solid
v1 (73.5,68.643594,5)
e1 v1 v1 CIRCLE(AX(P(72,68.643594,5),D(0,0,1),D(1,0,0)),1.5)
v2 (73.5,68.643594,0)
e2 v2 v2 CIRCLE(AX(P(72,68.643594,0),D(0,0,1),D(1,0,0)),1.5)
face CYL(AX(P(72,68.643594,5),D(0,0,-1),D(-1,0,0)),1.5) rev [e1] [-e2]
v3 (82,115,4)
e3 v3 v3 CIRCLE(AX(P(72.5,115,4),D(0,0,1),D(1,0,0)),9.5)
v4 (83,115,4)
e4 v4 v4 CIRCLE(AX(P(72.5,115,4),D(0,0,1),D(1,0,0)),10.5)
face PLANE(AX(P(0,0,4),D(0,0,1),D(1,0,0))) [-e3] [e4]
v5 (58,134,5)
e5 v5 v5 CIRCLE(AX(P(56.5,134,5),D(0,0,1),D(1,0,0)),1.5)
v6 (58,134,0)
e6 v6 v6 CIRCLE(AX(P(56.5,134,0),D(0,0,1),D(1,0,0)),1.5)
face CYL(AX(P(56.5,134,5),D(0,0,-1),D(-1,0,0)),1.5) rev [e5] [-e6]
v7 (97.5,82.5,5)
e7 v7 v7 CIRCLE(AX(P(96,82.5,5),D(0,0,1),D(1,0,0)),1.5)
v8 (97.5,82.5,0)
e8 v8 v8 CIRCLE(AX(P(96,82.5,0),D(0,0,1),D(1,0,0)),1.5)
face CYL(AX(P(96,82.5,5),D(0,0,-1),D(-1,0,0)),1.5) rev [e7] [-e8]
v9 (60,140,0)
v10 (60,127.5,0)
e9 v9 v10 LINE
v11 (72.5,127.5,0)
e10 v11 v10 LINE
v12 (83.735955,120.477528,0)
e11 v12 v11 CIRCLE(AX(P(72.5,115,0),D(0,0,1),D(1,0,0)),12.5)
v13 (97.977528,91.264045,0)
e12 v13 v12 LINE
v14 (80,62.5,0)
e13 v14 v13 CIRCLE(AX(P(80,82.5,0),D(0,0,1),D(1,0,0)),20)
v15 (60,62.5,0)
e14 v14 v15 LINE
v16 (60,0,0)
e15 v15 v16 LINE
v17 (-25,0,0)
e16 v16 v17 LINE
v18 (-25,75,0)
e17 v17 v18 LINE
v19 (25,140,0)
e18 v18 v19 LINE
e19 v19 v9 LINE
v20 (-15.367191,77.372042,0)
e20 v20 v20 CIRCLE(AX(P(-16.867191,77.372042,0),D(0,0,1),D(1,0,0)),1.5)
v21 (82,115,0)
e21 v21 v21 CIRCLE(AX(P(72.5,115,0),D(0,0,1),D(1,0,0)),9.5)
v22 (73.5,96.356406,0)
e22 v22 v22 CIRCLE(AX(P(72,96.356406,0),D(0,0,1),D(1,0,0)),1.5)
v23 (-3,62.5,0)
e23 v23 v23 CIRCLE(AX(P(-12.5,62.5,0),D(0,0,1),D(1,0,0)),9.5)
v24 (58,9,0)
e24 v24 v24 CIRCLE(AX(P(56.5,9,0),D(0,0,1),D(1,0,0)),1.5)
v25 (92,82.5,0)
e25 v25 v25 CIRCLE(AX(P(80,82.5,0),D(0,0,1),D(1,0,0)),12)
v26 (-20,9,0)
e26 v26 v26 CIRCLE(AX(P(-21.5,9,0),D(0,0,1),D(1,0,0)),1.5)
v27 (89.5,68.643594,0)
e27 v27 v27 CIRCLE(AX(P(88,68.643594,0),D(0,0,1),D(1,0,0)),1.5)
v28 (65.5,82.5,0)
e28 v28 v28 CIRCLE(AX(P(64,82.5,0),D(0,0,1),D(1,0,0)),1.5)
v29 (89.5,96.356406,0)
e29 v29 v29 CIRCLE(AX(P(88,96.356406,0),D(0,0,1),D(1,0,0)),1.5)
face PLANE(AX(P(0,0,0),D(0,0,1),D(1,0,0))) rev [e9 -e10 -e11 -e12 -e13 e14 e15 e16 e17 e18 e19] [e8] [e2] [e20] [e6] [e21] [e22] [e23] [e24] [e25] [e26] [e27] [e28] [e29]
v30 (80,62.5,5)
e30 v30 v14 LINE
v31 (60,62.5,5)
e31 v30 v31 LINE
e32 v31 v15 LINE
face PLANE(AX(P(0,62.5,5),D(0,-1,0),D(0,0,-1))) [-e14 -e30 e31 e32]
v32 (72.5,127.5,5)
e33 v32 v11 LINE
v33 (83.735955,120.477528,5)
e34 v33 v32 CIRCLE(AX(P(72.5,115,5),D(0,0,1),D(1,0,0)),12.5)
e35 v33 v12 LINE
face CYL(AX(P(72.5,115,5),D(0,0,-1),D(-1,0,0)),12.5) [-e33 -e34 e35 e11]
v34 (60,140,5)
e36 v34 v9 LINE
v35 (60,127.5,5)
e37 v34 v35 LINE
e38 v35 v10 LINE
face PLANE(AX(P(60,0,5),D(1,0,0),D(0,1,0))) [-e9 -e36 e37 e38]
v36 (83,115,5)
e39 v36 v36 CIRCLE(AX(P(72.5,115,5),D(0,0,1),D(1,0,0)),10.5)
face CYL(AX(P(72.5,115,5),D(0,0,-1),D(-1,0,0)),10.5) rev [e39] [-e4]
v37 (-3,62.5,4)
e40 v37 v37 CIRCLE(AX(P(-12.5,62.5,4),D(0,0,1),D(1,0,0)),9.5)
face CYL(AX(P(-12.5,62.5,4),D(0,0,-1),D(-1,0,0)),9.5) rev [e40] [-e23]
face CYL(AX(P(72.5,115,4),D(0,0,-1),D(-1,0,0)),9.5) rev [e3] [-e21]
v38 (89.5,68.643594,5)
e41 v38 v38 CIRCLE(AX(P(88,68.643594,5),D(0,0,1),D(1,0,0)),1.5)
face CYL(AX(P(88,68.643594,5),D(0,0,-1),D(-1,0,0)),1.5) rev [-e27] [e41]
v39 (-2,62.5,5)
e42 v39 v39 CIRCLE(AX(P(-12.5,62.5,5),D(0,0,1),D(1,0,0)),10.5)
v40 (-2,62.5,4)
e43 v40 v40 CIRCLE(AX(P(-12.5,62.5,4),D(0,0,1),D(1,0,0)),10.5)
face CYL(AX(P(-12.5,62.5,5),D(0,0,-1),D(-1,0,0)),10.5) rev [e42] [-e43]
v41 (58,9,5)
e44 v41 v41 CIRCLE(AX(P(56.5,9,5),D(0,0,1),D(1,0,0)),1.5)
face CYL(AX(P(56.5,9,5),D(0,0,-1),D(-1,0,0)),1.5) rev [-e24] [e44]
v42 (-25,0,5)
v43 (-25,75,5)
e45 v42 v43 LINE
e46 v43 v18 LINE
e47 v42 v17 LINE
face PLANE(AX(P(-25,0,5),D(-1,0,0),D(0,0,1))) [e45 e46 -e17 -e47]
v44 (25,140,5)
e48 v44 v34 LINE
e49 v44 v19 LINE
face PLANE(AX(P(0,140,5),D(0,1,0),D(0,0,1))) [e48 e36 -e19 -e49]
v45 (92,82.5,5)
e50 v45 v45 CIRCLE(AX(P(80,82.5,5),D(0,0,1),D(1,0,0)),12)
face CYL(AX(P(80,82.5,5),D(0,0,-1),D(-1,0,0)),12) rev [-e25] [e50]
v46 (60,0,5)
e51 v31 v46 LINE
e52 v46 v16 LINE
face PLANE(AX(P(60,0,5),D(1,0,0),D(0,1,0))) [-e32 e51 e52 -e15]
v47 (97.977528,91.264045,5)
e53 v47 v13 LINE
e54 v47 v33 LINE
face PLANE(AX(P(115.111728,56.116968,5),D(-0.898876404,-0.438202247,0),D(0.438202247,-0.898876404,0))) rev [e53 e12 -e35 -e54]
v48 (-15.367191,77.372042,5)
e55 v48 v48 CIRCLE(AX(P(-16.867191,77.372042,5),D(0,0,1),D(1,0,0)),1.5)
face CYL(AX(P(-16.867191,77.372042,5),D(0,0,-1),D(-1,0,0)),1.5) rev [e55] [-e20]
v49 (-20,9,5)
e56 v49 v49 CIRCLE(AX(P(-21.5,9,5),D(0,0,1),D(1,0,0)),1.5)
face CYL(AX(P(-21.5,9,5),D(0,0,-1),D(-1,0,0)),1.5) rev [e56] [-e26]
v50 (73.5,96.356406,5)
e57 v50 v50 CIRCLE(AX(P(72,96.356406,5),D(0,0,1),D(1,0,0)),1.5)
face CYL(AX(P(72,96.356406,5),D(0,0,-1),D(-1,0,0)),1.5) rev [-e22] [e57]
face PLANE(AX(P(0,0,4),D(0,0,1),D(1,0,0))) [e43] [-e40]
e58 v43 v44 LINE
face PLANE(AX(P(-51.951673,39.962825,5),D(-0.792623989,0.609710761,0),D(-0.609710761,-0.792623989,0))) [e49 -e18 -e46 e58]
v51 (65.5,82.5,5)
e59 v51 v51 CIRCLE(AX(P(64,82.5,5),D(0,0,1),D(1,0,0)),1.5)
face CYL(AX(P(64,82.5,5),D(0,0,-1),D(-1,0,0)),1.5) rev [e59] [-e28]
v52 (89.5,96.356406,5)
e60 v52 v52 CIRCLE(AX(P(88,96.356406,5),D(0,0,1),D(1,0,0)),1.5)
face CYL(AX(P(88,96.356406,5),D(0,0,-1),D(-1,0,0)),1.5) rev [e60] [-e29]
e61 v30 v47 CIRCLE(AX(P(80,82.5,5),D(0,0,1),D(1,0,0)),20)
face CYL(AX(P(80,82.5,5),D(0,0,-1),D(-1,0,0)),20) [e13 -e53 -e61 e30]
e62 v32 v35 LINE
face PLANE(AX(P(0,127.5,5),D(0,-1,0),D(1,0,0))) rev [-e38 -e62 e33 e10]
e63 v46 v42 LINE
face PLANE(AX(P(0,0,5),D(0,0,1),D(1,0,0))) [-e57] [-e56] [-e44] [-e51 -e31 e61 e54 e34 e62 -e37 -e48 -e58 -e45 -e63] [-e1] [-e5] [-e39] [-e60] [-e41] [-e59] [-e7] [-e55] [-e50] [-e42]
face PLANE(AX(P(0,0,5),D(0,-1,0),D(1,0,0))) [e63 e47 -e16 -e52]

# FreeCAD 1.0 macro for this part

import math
import FreeCAD as App
import Part
import Sketcher
from FreeCAD import Vector

doc = App.newDocument("Part")
body = doc.addObject("PartDesign::Body", "Body")

# Sketch on XY plane
sketch1 = body.newObject("Sketcher::SketchObject", "Sketch")
sketch1.AttachmentSupport = (doc.getObject("XY_Plane"), [""])
sketch1.MapMode = "FlatFace"
sketch1.addGeometry([
    Part.LineSegment(Vector(60, 140, 0), Vector(25, 140, 0)),  # 0
    Part.LineSegment(Vector(25, 140, 0), Vector(-25, 75, 0)),  # 1
    Part.LineSegment(Vector(-25, 75, 0), Vector(-25, 0, 0)),  # 2
    Part.LineSegment(Vector(-25, 0, 0), Vector(60, 0, 0)),  # 3
    Part.LineSegment(Vector(60, 0, 0), Vector(60, 62.5, 0)),  # 4
    Part.LineSegment(Vector(60, 62.5, 0), Vector(80, 62.5, 0)),  # 5
    Part.ArcOfCircle(Part.Circle(Vector(80, 82.5, 0), Vector(0, 0, 1), 20), math.radians(-90), math.radians(25.989234)),  # 6
    Part.LineSegment(Vector(97.977528, 91.264045, 0), Vector(83.735955, 120.477528, 0)),  # 7
    Part.ArcOfCircle(Part.Circle(Vector(72.5, 115, 0), Vector(0, 0, 1), 12.5), math.radians(25.989234), math.radians(90)),  # 8
    Part.LineSegment(Vector(72.5, 127.5, 0), Vector(60, 127.5, 0)),  # 9
    Part.LineSegment(Vector(60, 127.5, 0), Vector(60, 140, 0)),  # 10
    Part.Circle(Vector(-21.5, 9, 0), Vector(0, 0, 1), 1.5),  # 11
    Part.Circle(Vector(-12.5, 62.5, 0), Vector(0, 0, 1), 10.5),  # 12
    Part.Circle(Vector(56.5, 9, 0), Vector(0, 0, 1), 1.5),  # 13
    Part.Circle(Vector(72, 68.643594, 0), Vector(0, 0, 1), 1.5),  # 14
    Part.Circle(Vector(88, 68.643594, 0), Vector(0, 0, 1), 1.5),  # 15
    Part.Circle(Vector(-16.867191, 77.372042, 0), Vector(0, 0, 1), 1.5),  # 16
    Part.Circle(Vector(64, 82.5, 0), Vector(0, 0, 1), 1.5),  # 17
    Part.Circle(Vector(80, 82.5, 0), Vector(0, 0, 1), 12),  # 18
    Part.Circle(Vector(96, 82.5, 0), Vector(0, 0, 1), 1.5),  # 19
    Part.Circle(Vector(72, 96.356406, 0), Vector(0, 0, 1), 1.5),  # 20
    Part.Circle(Vector(88, 96.356406, 0), Vector(0, 0, 1), 1.5),  # 21
    Part.Circle(Vector(56.5, 134, 0), Vector(0, 0, 1), 1.5),  # 22
    Part.Circle(Vector(72.5, 115, 0), Vector(0, 0, 1), 10.5),  # 23
], False)
sketch1.addConstraint([
    Sketcher.Constraint("Coincident", 0, 2, 1, 1),
    Sketcher.Constraint("Coincident", 1, 2, 2, 1),
    Sketcher.Constraint("Coincident", 2, 2, 3, 1),
    Sketcher.Constraint("Coincident", 3, 2, 4, 1),
    Sketcher.Constraint("Coincident", 4, 2, 5, 1),
    Sketcher.Constraint("Tangent", 5, 2, 6, 1),
    Sketcher.Constraint("Tangent", 6, 2, 7, 1),
    Sketcher.Constraint("Tangent", 7, 2, 8, 1),
    Sketcher.Constraint("Tangent", 8, 2, 9, 1),
    Sketcher.Constraint("Coincident", 9, 2, 10, 1),
    Sketcher.Constraint("Coincident", 10, 2, 0, 1),
    Sketcher.Constraint("Horizontal", 0),
    Sketcher.Constraint("Vertical", 2),
    Sketcher.Constraint("Horizontal", 3),
    Sketcher.Constraint("Vertical", 4),
    Sketcher.Constraint("Horizontal", 5),
    Sketcher.Constraint("Horizontal", 9),
    Sketcher.Constraint("Vertical", 10),
    Sketcher.Constraint("Coincident", 18, 3, 6, 3),
    Sketcher.Constraint("Coincident", 23, 3, 8, 3),
    Sketcher.Constraint("Equal", 11, 13),
    Sketcher.Constraint("Equal", 13, 14),
    Sketcher.Constraint("Equal", 14, 15),
    Sketcher.Constraint("Equal", 15, 16),
    Sketcher.Constraint("Equal", 16, 17),
    Sketcher.Constraint("Equal", 17, 19),
    Sketcher.Constraint("Equal", 19, 20),
    Sketcher.Constraint("Equal", 20, 21),
    Sketcher.Constraint("Equal", 21, 22),
    Sketcher.Constraint("Equal", 12, 23),
    Sketcher.Constraint("PointOnObject", 2, 2, -1),
    Sketcher.Constraint("Horizontal", 11, 3, 13, 3),
    Sketcher.Constraint("Horizontal", 14, 3, 15, 3),
    Sketcher.Constraint("Horizontal", 6, 3, 17, 3),
    Sketcher.Constraint("Horizontal", 18, 3, 19, 3),
    Sketcher.Constraint("Horizontal", 20, 3, 21, 3),
    Sketcher.Constraint("Horizontal", 12, 3, 4, 2),
    Sketcher.Constraint("Vertical", 14, 3, 20, 3),
    Sketcher.Constraint("Vertical", 15, 3, 21, 3),
    Sketcher.Constraint("Vertical", 13, 3, 22, 3),
    Sketcher.Constraint("Vertical", 4, 2, 9, 2),
    Sketcher.Constraint("Equal", 9, 10),
    Sketcher.Constraint("Diameter", 11, 3.0),
    Sketcher.Constraint("Diameter", 12, 21.0),
    Sketcher.Constraint("Diameter", 18, 24.0),
    Sketcher.Constraint("Radius", 6, 20.0),
    Sketcher.Constraint("Radius", 8, 12.5),
    Sketcher.Constraint("DistanceX", 0, 2, 0, 1, 35.0),
    Sketcher.Constraint("DistanceX", 3, 1, 3, 2, 85.0),
    Sketcher.Constraint("DistanceX", 5, 1, 5, 2, 20.0),
    Sketcher.Constraint("DistanceY", 2, 2, 2, 1, 75.0),
    Sketcher.Constraint("DistanceX", 9, 2, 9, 1, 12.5),
    Sketcher.Constraint("DistanceY", 4, 1, 4, 2, 62.5),
    Sketcher.Constraint("DistanceX", -1, 1, 6, 3, 80.0),
    Sketcher.Constraint("DistanceY", -1, 1, 8, 3, 115.0),
    Sketcher.Constraint("DistanceY", -1, 1, 11, 3, 9.0),
    Sketcher.Constraint("DistanceX", -1, 1, 14, 3, 72.0),
    Sketcher.Constraint("DistanceX", -1, 1, 15, 3, 88.0),
    Sketcher.Constraint("DistanceX", -1, 1, 17, 3, 64.0),
    Sketcher.Constraint("DistanceX", -1, 1, 19, 3, 96.0),
    Sketcher.Constraint("DistanceY", -1, 1, 22, 3, 134.0),
    Sketcher.Constraint("DistanceX", 11, 3, 8, 3, 94.0),
    Sketcher.Constraint("DistanceX", 11, 3, 12, 3, 9.0),
    Sketcher.Constraint("DistanceX", 11, 3, 13, 3, 78.0),
    Sketcher.Constraint("DistanceX", 16, 3, -1, 1, 16.867191),
    Sketcher.Constraint("DistanceY", 14, 3, 16, 3, 8.728449),
    Sketcher.Constraint("DistanceY", 6, 2, 21, 3, 5.092362),
    Sketcher.Constraint("DistanceY", 15, 3, 6, 2, 22.620451),
])
pad1 = body.newObject("PartDesign::Pad", "Pad")
pad1.Profile = sketch1
pad1.Length = 5

# Sketch on XY plane
sketch2 = body.newObject("Sketcher::SketchObject", "Sketch001")
sketch2.AttachmentSupport = (doc.getObject("XY_Plane"), [""])
sketch2.MapMode = "FlatFace"
sketch2.addGeometry([
    Part.Circle(Vector(-12.5, 62.5, 0), Vector(0, 0, 1), 10.5),
    Part.Circle(Vector(-12.5, 62.5, 0), Vector(0, 0, 1), 9.5),
    Part.Circle(Vector(72.5, 115, 0), Vector(0, 0, 1), 10.5),
    Part.Circle(Vector(72.5, 115, 0), Vector(0, 0, 1), 9.5),
], False)
sketch2.addConstraint([
    Sketcher.Constraint("Coincident", 1, 3, 0, 3),
    Sketcher.Constraint("Coincident", 3, 3, 2, 3),
    Sketcher.Constraint("Equal", 0, 2),
    Sketcher.Constraint("Equal", 1, 3),
    Sketcher.Constraint("Diameter", 0, 21.0),
    Sketcher.Constraint("Diameter", 1, 19.0),
    Sketcher.Constraint("DistanceY", -1, 1, 2, 3, 115.0),
    Sketcher.Constraint("DistanceX", 0, 3, 2, 3, 85.0),
    Sketcher.Constraint("DistanceX", 0, 3, -1, 1, 12.5),
    Sketcher.Constraint("DistanceY", -1, 1, 0, 3, 62.5),
])
pad2 = body.newObject("PartDesign::Pad", "Pad001")
pad2.Profile = sketch2
pad2.Length = 4

doc.recompute()
